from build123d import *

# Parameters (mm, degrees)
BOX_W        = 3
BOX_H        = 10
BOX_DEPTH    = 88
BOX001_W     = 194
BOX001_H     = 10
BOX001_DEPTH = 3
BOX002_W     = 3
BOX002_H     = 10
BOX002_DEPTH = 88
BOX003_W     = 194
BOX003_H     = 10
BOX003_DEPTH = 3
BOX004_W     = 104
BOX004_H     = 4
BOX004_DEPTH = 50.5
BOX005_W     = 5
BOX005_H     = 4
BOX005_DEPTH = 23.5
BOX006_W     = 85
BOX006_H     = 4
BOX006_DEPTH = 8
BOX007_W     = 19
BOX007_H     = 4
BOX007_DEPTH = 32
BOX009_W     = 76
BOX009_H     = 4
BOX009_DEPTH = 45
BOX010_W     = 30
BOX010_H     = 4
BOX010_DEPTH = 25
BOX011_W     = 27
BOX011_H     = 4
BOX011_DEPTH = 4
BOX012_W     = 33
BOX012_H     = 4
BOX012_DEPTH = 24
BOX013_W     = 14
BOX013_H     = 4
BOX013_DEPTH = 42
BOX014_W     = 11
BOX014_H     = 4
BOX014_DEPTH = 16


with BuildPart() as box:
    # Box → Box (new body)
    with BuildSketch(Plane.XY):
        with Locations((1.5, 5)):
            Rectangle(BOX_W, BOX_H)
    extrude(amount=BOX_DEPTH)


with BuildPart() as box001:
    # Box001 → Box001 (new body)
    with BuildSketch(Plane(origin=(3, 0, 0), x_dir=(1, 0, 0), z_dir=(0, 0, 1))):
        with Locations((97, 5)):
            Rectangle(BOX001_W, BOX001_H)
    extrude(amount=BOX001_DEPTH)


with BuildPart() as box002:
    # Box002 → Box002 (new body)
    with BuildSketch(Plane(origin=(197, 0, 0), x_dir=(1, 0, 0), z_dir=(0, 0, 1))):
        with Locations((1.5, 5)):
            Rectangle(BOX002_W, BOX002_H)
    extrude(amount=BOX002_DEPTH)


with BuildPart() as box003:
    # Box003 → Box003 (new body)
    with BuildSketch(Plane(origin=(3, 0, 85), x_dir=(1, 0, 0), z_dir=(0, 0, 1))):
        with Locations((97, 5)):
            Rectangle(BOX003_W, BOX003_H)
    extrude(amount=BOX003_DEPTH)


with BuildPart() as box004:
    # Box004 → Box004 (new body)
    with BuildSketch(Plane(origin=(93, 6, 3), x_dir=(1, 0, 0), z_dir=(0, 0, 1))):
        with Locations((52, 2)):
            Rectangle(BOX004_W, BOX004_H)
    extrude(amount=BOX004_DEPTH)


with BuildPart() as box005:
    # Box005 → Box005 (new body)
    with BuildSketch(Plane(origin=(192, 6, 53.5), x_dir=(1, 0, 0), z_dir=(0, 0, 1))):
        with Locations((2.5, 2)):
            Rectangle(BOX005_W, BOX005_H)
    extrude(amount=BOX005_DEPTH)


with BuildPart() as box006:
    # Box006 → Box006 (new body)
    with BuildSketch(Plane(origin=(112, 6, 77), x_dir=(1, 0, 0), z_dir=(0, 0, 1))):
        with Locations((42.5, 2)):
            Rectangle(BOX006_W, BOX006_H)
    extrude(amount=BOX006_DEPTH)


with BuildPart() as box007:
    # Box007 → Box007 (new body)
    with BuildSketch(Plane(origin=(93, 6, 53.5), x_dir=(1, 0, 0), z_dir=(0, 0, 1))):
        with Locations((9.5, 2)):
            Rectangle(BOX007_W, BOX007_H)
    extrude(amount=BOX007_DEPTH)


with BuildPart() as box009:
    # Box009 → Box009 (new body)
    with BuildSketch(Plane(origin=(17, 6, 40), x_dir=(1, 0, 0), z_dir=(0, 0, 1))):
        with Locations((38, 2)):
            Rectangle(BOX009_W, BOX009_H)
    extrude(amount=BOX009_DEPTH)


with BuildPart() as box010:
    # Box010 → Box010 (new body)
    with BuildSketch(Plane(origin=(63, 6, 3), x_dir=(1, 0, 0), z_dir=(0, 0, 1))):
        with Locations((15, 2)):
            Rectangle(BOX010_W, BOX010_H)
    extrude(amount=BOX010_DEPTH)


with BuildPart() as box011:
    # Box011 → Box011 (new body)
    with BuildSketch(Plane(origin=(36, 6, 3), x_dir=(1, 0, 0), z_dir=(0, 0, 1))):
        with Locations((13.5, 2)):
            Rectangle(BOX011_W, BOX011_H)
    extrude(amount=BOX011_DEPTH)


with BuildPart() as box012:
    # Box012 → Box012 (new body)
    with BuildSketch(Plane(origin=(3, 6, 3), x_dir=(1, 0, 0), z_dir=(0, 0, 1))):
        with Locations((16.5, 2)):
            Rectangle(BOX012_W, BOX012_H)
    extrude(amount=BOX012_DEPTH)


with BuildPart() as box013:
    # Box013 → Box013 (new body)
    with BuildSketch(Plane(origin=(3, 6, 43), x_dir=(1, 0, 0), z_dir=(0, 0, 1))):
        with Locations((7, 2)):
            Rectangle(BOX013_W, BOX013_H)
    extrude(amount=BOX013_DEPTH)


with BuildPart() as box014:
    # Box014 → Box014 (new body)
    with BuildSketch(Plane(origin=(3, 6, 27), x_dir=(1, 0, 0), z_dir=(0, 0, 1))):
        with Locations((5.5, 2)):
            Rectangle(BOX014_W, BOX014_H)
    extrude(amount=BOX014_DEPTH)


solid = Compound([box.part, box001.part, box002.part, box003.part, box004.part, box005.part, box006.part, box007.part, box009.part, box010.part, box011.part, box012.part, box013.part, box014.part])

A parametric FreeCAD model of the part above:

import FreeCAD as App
import Part
import Sketcher
from FreeCAD import Vector
Q = App.Units.Quantity


def add_polygon(sketch, points):
    """Adds a closed chain of lines whose ends are joined by coincident constraints."""
    first, n = sketch.GeometryCount, len(points)
    for a, b in zip(points, points[1:] + points[:1]):
        sketch.addGeometry(Part.LineSegment(App.Vector(*a, 0), App.Vector(*b, 0)), False)
    for i in range(n):
        sketch.addConstraint(Sketcher.Constraint("Coincident", first + i, 2, first + (i + 1) % n, 1))

doc = App.newDocument("Part")
body = doc.addObject("PartDesign::Body", "Body")

# Sketch on XY plane
sketch1 = body.newObject("Sketcher::SketchObject", "Sketch")
sketch1.AttachmentSupport = (doc.getObject("XY_Plane"), [""])
sketch1.MapMode = "FlatFace"
add_polygon(sketch1, [(0, 10), (0, 0), (3, 0), (3, 10)])  # lines 0-3
sketch1.addConstraint(Sketcher.Constraint("Vertical", 0))
sketch1.addConstraint(Sketcher.Constraint("Horizontal", 1))
sketch1.addConstraint(Sketcher.Constraint("Vertical", 2))
sketch1.addConstraint(Sketcher.Constraint("Horizontal", 3))
sketch1.addConstraint(Sketcher.Constraint("Coincident", 0, 2, -1, 1))
sketch1.addConstraint(Sketcher.Constraint("DistanceX", 1, 1, 1, 2, Q("3 mm")))
sketch1.addConstraint(Sketcher.Constraint("DistanceY", 0, 2, 0, 1, Q("10 mm")))
pad1 = body.newObject("PartDesign::Pad", "Pad")
pad1.Profile = sketch1
pad1.Length = 88
body2 = doc.addObject("PartDesign::Body", "Body001")

# Sketch on XY plane
sketch2 = body2.newObject("Sketcher::SketchObject", "Sketch001")
sketch2.AttachmentSupport = (doc.getObject("XY_Plane001"), [""])
sketch2.MapMode = "FlatFace"
add_polygon(sketch2, [(3, 10), (3, 0), (197, 0), (197, 10)])  # lines 0-3
sketch2.addConstraint(Sketcher.Constraint("Vertical", 0))
sketch2.addConstraint(Sketcher.Constraint("Horizontal", 1))
sketch2.addConstraint(Sketcher.Constraint("Vertical", 2))
sketch2.addConstraint(Sketcher.Constraint("Horizontal", 3))
sketch2.addConstraint(Sketcher.Constraint("PointOnObject", 0, 2, -1))
sketch2.addConstraint(Sketcher.Constraint("DistanceX", 1, 1, 1, 2, Q("194 mm")))
sketch2.addConstraint(Sketcher.Constraint("DistanceY", 0, 2, 0, 1, Q("10 mm")))
sketch2.addConstraint(Sketcher.Constraint("DistanceX", -1, 1, 0, 2, Q("3 mm")))
pad2 = body2.newObject("PartDesign::Pad", "Pad001")
pad2.Profile = sketch2
pad2.Length = 3
body3 = doc.addObject("PartDesign::Body", "Body002")

# Sketch on XY plane
sketch3 = body3.newObject("Sketcher::SketchObject", "Sketch002")
sketch3.AttachmentSupport = (doc.getObject("XY_Plane002"), [""])
sketch3.MapMode = "FlatFace"
add_polygon(sketch3, [(197, 10), (197, 0), (200, 0), (200, 10)])  # lines 0-3
sketch3.addConstraint(Sketcher.Constraint("Vertical", 0))
sketch3.addConstraint(Sketcher.Constraint("Horizontal", 1))
sketch3.addConstraint(Sketcher.Constraint("Vertical", 2))
sketch3.addConstraint(Sketcher.Constraint("Horizontal", 3))
sketch3.addConstraint(Sketcher.Constraint("PointOnObject", 0, 2, -1))
sketch3.addConstraint(Sketcher.Constraint("DistanceX", 1, 1, 1, 2, Q("3 mm")))
sketch3.addConstraint(Sketcher.Constraint("DistanceY", 0, 2, 0, 1, Q("10 mm")))
sketch3.addConstraint(Sketcher.Constraint("DistanceX", -1, 1, 0, 2, Q("197 mm")))
pad3 = body3.newObject("PartDesign::Pad", "Pad002")
pad3.Profile = sketch3
pad3.Length = 88
body4 = doc.addObject("PartDesign::Body", "Body003")

# Sketch on XY plane
sketch4 = body4.newObject("Sketcher::SketchObject", "Sketch003")
sketch4.AttachmentSupport = (doc.getObject("XY_Plane003"), [""])
sketch4.MapMode = "FlatFace"
sketch4.AttachmentOffset = App.Placement(Vector(0, 0, 85), App.Rotation())
add_polygon(sketch4, [(3, 10), (3, 0), (197, 0), (197, 10)])  # lines 0-3
sketch4.addConstraint(Sketcher.Constraint("Vertical", 0))
sketch4.addConstraint(Sketcher.Constraint("Horizontal", 1))
sketch4.addConstraint(Sketcher.Constraint("Vertical", 2))
sketch4.addConstraint(Sketcher.Constraint("Horizontal", 3))
sketch4.addConstraint(Sketcher.Constraint("PointOnObject", 0, 2, -1))
sketch4.addConstraint(Sketcher.Constraint("DistanceX", 1, 1, 1, 2, Q("194 mm")))
sketch4.addConstraint(Sketcher.Constraint("DistanceY", 0, 2, 0, 1, Q("10 mm")))
sketch4.addConstraint(Sketcher.Constraint("DistanceX", -1, 1, 0, 2, Q("3 mm")))
pad4 = body4.newObject("PartDesign::Pad", "Pad003")
pad4.Profile = sketch4
pad4.Length = 3
body5 = doc.addObject("PartDesign::Body", "Body004")

# Sketch on XY plane
sketch5 = body5.newObject("Sketcher::SketchObject", "Sketch004")
sketch5.AttachmentSupport = (doc.getObject("XY_Plane004"), [""])
sketch5.MapMode = "FlatFace"
sketch5.AttachmentOffset = App.Placement(Vector(0, 0, 3), App.Rotation())
add_polygon(sketch5, [(93, 10), (93, 6), (197, 6), (197, 10)])  # lines 0-3
sketch5.addConstraint(Sketcher.Constraint("Vertical", 0))
sketch5.addConstraint(Sketcher.Constraint("Horizontal", 1))
sketch5.addConstraint(Sketcher.Constraint("Vertical", 2))
sketch5.addConstraint(Sketcher.Constraint("Horizontal", 3))
sketch5.addConstraint(Sketcher.Constraint("DistanceX", 1, 1, 1, 2, Q("104 mm")))
sketch5.addConstraint(Sketcher.Constraint("DistanceY", 0, 2, 0, 1, Q("4 mm")))
sketch5.addConstraint(Sketcher.Constraint("DistanceX", -1, 1, 0, 2, Q("93 mm")))
sketch5.addConstraint(Sketcher.Constraint("DistanceY", -1, 1, 0, 2, Q("6 mm")))
pad5 = body5.newObject("PartDesign::Pad", "Pad004")
pad5.Profile = sketch5
pad5.Length = 50.5
body6 = doc.addObject("PartDesign::Body", "Body005")

# Sketch on XY plane
sketch6 = body6.newObject("Sketcher::SketchObject", "Sketch005")
sketch6.AttachmentSupport = (doc.getObject("XY_Plane005"), [""])
sketch6.MapMode = "FlatFace"
sketch6.AttachmentOffset = App.Placement(Vector(0, 0, 53.5), App.Rotation())
add_polygon(sketch6, [(192, 10), (192, 6), (197, 6), (197, 10)])  # lines 0-3
sketch6.addConstraint(Sketcher.Constraint("Vertical", 0))
sketch6.addConstraint(Sketcher.Constraint("Horizontal", 1))
sketch6.addConstraint(Sketcher.Constraint("Vertical", 2))
sketch6.addConstraint(Sketcher.Constraint("Horizontal", 3))
sketch6.addConstraint(Sketcher.Constraint("DistanceX", 1, 1, 1, 2, Q("5 mm")))
sketch6.addConstraint(Sketcher.Constraint("DistanceY", 0, 2, 0, 1, Q("4 mm")))
sketch6.addConstraint(Sketcher.Constraint("DistanceX", -1, 1, 0, 2, Q("192 mm")))
sketch6.addConstraint(Sketcher.Constraint("DistanceY", -1, 1, 0, 2, Q("6 mm")))
pad6 = body6.newObject("PartDesign::Pad", "Pad005")
pad6.Profile = sketch6
pad6.Length = 23.5
body7 = doc.addObject("PartDesign::Body", "Body006")

# Sketch on XY plane
sketch7 = body7.newObject("Sketcher::SketchObject", "Sketch006")
sketch7.AttachmentSupport = (doc.getObject("XY_Plane006"), [""])
sketch7.MapMode = "FlatFace"
sketch7.AttachmentOffset = App.Placement(Vector(0, 0, 77), App.Rotation())
add_polygon(sketch7, [(112, 10), (112, 6), (197, 6), (197, 10)])  # lines 0-3
sketch7.addConstraint(Sketcher.Constraint("Vertical", 0))
sketch7.addConstraint(Sketcher.Constraint("Horizontal", 1))
sketch7.addConstraint(Sketcher.Constraint("Vertical", 2))
sketch7.addConstraint(Sketcher.Constraint("Horizontal", 3))
sketch7.addConstraint(Sketcher.Constraint("DistanceX", 1, 1, 1, 2, Q("85 mm")))
sketch7.addConstraint(Sketcher.Constraint("DistanceY", 0, 2, 0, 1, Q("4 mm")))
sketch7.addConstraint(Sketcher.Constraint("DistanceX", -1, 1, 0, 2, Q("112 mm")))
sketch7.addConstraint(Sketcher.Constraint("DistanceY", -1, 1, 0, 2, Q("6 mm")))
pad7 = body7.newObject("PartDesign::Pad", "Pad006")
pad7.Profile = sketch7
pad7.Length = 8
body8 = doc.addObject("PartDesign::Body", "Body007")

# Sketch on XY plane
sketch8 = body8.newObject("Sketcher::SketchObject", "Sketch007")
sketch8.AttachmentSupport = (doc.getObject("XY_Plane007"), [""])
sketch8.MapMode = "FlatFace"
sketch8.AttachmentOffset = App.Placement(Vector(0, 0, 53.5), App.Rotation())
add_polygon(sketch8, [(93, 10), (93, 6), (112, 6), (112, 10)])  # lines 0-3
sketch8.addConstraint(Sketcher.Constraint("Vertical", 0))
sketch8.addConstraint(Sketcher.Constraint("Horizontal", 1))
sketch8.addConstraint(Sketcher.Constraint("Vertical", 2))
sketch8.addConstraint(Sketcher.Constraint("Horizontal", 3))
sketch8.addConstraint(Sketcher.Constraint("DistanceX", 1, 1, 1, 2, Q("19 mm")))
sketch8.addConstraint(Sketcher.Constraint("DistanceY", 0, 2, 0, 1, Q("4 mm")))
sketch8.addConstraint(Sketcher.Constraint("DistanceX", -1, 1, 0, 2, Q("93 mm")))
sketch8.addConstraint(Sketcher.Constraint("DistanceY", -1, 1, 0, 2, Q("6 mm")))
pad8 = body8.newObject("PartDesign::Pad", "Pad007")
pad8.Profile = sketch8
pad8.Length = 32
body9 = doc.addObject("PartDesign::Body", "Body008")

# Sketch on XY plane
sketch9 = body9.newObject("Sketcher::SketchObject", "Sketch008")
sketch9.AttachmentSupport = (doc.getObject("XY_Plane008"), [""])
sketch9.MapMode = "FlatFace"
sketch9.AttachmentOffset = App.Placement(Vector(0, 0, 40), App.Rotation())
add_polygon(sketch9, [(17, 10), (17, 6), (93, 6), (93, 10)])  # lines 0-3
sketch9.addConstraint(Sketcher.Constraint("Vertical", 0))
sketch9.addConstraint(Sketcher.Constraint("Horizontal", 1))
sketch9.addConstraint(Sketcher.Constraint("Vertical", 2))
sketch9.addConstraint(Sketcher.Constraint("Horizontal", 3))
sketch9.addConstraint(Sketcher.Constraint("DistanceX", 1, 1, 1, 2, Q("76 mm")))
sketch9.addConstraint(Sketcher.Constraint("DistanceY", 0, 2, 0, 1, Q("4 mm")))
sketch9.addConstraint(Sketcher.Constraint("DistanceX", -1, 1, 0, 2, Q("17 mm")))
sketch9.addConstraint(Sketcher.Constraint("DistanceY", -1, 1, 0, 2, Q("6 mm")))
pad9 = body9.newObject("PartDesign::Pad", "Pad008")
pad9.Profile = sketch9
pad9.Length = 45
body10 = doc.addObject("PartDesign::Body", "Body009")

# Sketch on XY plane
sketch10 = body10.newObject("Sketcher::SketchObject", "Sketch009")
sketch10.AttachmentSupport = (doc.getObject("XY_Plane009"), [""])
sketch10.MapMode = "FlatFace"
sketch10.AttachmentOffset = App.Placement(Vector(0, 0, 3), App.Rotation())
add_polygon(sketch10, [(63, 10), (63, 6), (93, 6), (93, 10)])  # lines 0-3
sketch10.addConstraint(Sketcher.Constraint("Vertical", 0))
sketch10.addConstraint(Sketcher.Constraint("Horizontal", 1))
sketch10.addConstraint(Sketcher.Constraint("Vertical", 2))
sketch10.addConstraint(Sketcher.Constraint("Horizontal", 3))
sketch10.addConstraint(Sketcher.Constraint("DistanceX", 1, 1, 1, 2, Q("30 mm")))
sketch10.addConstraint(Sketcher.Constraint("DistanceY", 0, 2, 0, 1, Q("4 mm")))
sketch10.addConstraint(Sketcher.Constraint("DistanceX", -1, 1, 0, 2, Q("63 mm")))
sketch10.addConstraint(Sketcher.Constraint("DistanceY", -1, 1, 0, 2, Q("6 mm")))
pad10 = body10.newObject("PartDesign::Pad", "Pad009")
pad10.Profile = sketch10
pad10.Length = 25
body11 = doc.addObject("PartDesign::Body", "Body010")

# Sketch on XY plane
sketch11 = body11.newObject("Sketcher::SketchObject", "Sketch010")
sketch11.AttachmentSupport = (doc.getObject("XY_Plane010"), [""])
sketch11.MapMode = "FlatFace"
sketch11.AttachmentOffset = App.Placement(Vector(0, 0, 3), App.Rotation())
add_polygon(sketch11, [(36, 10), (36, 6), (63, 6), (63, 10)])  # lines 0-3
sketch11.addConstraint(Sketcher.Constraint("Vertical", 0))
sketch11.addConstraint(Sketcher.Constraint("Horizontal", 1))
sketch11.addConstraint(Sketcher.Constraint("Vertical", 2))
sketch11.addConstraint(Sketcher.Constraint("Horizontal", 3))
sketch11.addConstraint(Sketcher.Constraint("DistanceX", 1, 1, 1, 2, Q("27 mm")))
sketch11.addConstraint(Sketcher.Constraint("DistanceY", 0, 2, 0, 1, Q("4 mm")))
sketch11.addConstraint(Sketcher.Constraint("DistanceX", -1, 1, 0, 2, Q("36 mm")))
sketch11.addConstraint(Sketcher.Constraint("DistanceY", -1, 1, 0, 2, Q("6 mm")))
pad11 = body11.newObject("PartDesign::Pad", "Pad010")
pad11.Profile = sketch11
pad11.Length = 4
body12 = doc.addObject("PartDesign::Body", "Body011")

# Sketch on XY plane
sketch12 = body12.newObject("Sketcher::SketchObject", "Sketch011")
sketch12.AttachmentSupport = (doc.getObject("XY_Plane011"), [""])
sketch12.MapMode = "FlatFace"
sketch12.AttachmentOffset = App.Placement(Vector(0, 0, 3), App.Rotation())
add_polygon(sketch12, [(3, 10), (3, 6), (36, 6), (36, 10)])  # lines 0-3
sketch12.addConstraint(Sketcher.Constraint("Vertical", 0))
sketch12.addConstraint(Sketcher.Constraint("Horizontal", 1))
sketch12.addConstraint(Sketcher.Constraint("Vertical", 2))
sketch12.addConstraint(Sketcher.Constraint("Horizontal", 3))
sketch12.addConstraint(Sketcher.Constraint("DistanceX", 1, 1, 1, 2, Q("33 mm")))
sketch12.addConstraint(Sketcher.Constraint("DistanceY", 0, 2, 0, 1, Q("4 mm")))
sketch12.addConstraint(Sketcher.Constraint("DistanceX", -1, 1, 0, 2, Q("3 mm")))
sketch12.addConstraint(Sketcher.Constraint("DistanceY", -1, 1, 0, 2, Q("6 mm")))
pad12 = body12.newObject("PartDesign::Pad", "Pad011")
pad12.Profile = sketch12
pad12.Length = 24
body13 = doc.addObject("PartDesign::Body", "Body012")

# Sketch on XY plane
sketch13 = body13.newObject("Sketcher::SketchObject", "Sketch012")
sketch13.AttachmentSupport = (doc.getObject("XY_Plane012"), [""])
sketch13.MapMode = "FlatFace"
sketch13.AttachmentOffset = App.Placement(Vector(0, 0, 43), App.Rotation())
add_polygon(sketch13, [(3, 10), (3, 6), (17, 6), (17, 10)])  # lines 0-3
sketch13.addConstraint(Sketcher.Constraint("Vertical", 0))
sketch13.addConstraint(Sketcher.Constraint("Horizontal", 1))
sketch13.addConstraint(Sketcher.Constraint("Vertical", 2))
sketch13.addConstraint(Sketcher.Constraint("Horizontal", 3))
sketch13.addConstraint(Sketcher.Constraint("DistanceX", 1, 1, 1, 2, Q("14 mm")))
sketch13.addConstraint(Sketcher.Constraint("DistanceY", 0, 2, 0, 1, Q("4 mm")))
sketch13.addConstraint(Sketcher.Constraint("DistanceX", -1, 1, 0, 2, Q("3 mm")))
sketch13.addConstraint(Sketcher.Constraint("DistanceY", -1, 1, 0, 2, Q("6 mm")))
pad13 = body13.newObject("PartDesign::Pad", "Pad012")
pad13.Profile = sketch13
pad13.Length = 42
body14 = doc.addObject("PartDesign::Body", "Body013")

# Sketch on XY plane
sketch14 = body14.newObject("Sketcher::SketchObject", "Sketch013")
sketch14.AttachmentSupport = (doc.getObject("XY_Plane013"), [""])
sketch14.MapMode = "FlatFace"
sketch14.AttachmentOffset = App.Placement(Vector(0, 0, 27), App.Rotation())
add_polygon(sketch14, [(3, 10), (3, 6), (14, 6), (14, 10)])  # lines 0-3
sketch14.addConstraint(Sketcher.Constraint("Vertical", 0))
sketch14.addConstraint(Sketcher.Constraint("Horizontal", 1))
sketch14.addConstraint(Sketcher.Constraint("Vertical", 2))
sketch14.addConstraint(Sketcher.Constraint("Horizontal", 3))
sketch14.addConstraint(Sketcher.Constraint("DistanceX", 1, 1, 1, 2, Q("11 mm")))
sketch14.addConstraint(Sketcher.Constraint("DistanceY", 0, 2, 0, 1, Q("4 mm")))
sketch14.addConstraint(Sketcher.Constraint("DistanceX", -1, 1, 0, 2, Q("3 mm")))
sketch14.addConstraint(Sketcher.Constraint("DistanceY", -1, 1, 0, 2, Q("6 mm")))
pad14 = body14.newObject("PartDesign::Pad", "Pad013")
pad14.Profile = sketch14
pad14.Length = 16

doc.recompute()
